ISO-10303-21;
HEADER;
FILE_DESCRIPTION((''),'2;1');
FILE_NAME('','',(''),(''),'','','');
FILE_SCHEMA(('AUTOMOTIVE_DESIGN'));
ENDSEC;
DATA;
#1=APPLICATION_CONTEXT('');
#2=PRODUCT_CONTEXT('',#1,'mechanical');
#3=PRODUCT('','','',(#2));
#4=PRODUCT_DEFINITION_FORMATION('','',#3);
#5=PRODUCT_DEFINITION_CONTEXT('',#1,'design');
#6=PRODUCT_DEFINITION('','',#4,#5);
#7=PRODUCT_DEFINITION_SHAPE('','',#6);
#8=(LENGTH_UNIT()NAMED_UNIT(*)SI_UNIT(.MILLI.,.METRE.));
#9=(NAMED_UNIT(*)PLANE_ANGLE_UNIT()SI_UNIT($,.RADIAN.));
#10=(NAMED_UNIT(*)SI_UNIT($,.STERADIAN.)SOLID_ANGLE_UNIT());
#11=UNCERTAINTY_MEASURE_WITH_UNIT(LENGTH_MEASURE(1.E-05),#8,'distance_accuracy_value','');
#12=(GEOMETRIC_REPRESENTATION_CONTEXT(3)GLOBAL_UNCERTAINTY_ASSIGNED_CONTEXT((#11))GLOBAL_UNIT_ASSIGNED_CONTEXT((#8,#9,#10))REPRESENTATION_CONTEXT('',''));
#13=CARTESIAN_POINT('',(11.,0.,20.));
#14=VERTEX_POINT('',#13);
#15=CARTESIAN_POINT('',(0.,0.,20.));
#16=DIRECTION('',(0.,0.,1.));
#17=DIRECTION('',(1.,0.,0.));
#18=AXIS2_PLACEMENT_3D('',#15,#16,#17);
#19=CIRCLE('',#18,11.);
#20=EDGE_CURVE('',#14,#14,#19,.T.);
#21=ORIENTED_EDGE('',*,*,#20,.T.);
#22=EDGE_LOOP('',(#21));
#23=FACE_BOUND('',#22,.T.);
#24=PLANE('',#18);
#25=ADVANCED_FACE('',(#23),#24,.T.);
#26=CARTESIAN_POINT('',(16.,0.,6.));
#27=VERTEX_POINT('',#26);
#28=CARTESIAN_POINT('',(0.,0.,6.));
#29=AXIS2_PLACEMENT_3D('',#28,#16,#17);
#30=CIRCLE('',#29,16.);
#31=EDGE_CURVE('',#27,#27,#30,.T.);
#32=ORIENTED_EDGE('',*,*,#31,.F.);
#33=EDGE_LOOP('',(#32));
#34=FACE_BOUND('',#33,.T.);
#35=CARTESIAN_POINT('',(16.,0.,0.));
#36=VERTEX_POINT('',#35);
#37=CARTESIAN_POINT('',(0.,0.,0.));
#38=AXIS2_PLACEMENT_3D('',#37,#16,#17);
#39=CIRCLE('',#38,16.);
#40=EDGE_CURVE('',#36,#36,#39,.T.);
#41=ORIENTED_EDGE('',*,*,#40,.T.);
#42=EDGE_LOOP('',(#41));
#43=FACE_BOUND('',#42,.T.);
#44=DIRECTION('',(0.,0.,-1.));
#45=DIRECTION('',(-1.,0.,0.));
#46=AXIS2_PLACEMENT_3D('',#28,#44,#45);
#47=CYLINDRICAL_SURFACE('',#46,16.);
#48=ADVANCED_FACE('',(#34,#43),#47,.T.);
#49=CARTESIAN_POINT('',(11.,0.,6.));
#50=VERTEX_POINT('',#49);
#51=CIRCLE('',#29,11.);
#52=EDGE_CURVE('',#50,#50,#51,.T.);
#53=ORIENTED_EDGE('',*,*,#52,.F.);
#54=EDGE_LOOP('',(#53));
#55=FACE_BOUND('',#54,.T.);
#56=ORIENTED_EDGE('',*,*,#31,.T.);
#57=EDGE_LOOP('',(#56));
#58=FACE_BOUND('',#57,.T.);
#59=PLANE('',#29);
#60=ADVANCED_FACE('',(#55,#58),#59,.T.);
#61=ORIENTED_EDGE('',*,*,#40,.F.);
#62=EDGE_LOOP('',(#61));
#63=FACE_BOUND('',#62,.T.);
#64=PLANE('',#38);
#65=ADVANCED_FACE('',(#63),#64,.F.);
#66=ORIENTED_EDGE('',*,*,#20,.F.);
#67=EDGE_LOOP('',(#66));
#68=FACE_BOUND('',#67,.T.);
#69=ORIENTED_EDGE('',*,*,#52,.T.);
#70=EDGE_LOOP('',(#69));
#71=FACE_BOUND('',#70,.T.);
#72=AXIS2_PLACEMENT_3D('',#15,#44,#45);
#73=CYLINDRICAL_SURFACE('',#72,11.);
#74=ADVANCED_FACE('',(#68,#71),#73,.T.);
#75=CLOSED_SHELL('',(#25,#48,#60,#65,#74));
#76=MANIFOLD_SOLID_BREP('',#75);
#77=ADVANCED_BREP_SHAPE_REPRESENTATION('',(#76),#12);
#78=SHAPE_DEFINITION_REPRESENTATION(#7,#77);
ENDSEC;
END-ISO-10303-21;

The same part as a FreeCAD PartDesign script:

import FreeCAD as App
import Part
import Sketcher
from FreeCAD import Vector

doc = App.newDocument("Part")
params = doc.addObject("Spreadsheet::Sheet", "Params")
for row, (alias, value) in enumerate([
    ("sketch1_diameter", "22 mm"),
    ("pad1_length", "20 mm"),
    ("sketch2_diameter", "32 mm"),
    ("pad2_length", "6 mm"),
], start=1):
    params.set(f"A{row}", alias)
    params.set(f"B{row}", "=" + value)
    params.setAlias(f"B{row}", alias)

body = doc.addObject("PartDesign::Body", "Body")

# Sketch on XY plane
sketch1 = body.newObject("Sketcher::SketchObject", "Sketch")
sketch1.AttachmentSupport = (doc.getObject("XY_Plane"), [""])
sketch1.MapMode = "FlatFace"
sketch1.addGeometry(Part.Circle(Vector(0, 0, 0), Vector(0, 0, 1), 11), False)
sketch1.addConstraint([
    Sketcher.Constraint("Coincident", 0, 3, -1, 1),
    Sketcher.Constraint("Diameter", 0, 22.0),
])
sketch1.setExpression("Constraints[1]", "Params.sketch1_diameter")
pad1 = body.newObject("PartDesign::Pad", "Pad")
pad1.Profile = sketch1
pad1.setExpression("Length", "Params.pad1_length")

# Sketch on XY plane
sketch2 = body.newObject("Sketcher::SketchObject", "Sketch001")
sketch2.AttachmentSupport = (doc.getObject("XY_Plane"), [""])
sketch2.MapMode = "FlatFace"
sketch2.addGeometry(Part.Circle(Vector(0, 0, 0), Vector(0, 0, 1), 16), False)
sketch2.addConstraint([
    Sketcher.Constraint("Coincident", 0, 3, -1, 1),
    Sketcher.Constraint("Diameter", 0, 32.0),
])
sketch2.setExpression("Constraints[1]", "Params.sketch2_diameter")
pad2 = body.newObject("PartDesign::Pad", "Pad001")
pad2.Profile = sketch2
pad2.setExpression("Length", "Params.pad2_length")

doc.recompute()
